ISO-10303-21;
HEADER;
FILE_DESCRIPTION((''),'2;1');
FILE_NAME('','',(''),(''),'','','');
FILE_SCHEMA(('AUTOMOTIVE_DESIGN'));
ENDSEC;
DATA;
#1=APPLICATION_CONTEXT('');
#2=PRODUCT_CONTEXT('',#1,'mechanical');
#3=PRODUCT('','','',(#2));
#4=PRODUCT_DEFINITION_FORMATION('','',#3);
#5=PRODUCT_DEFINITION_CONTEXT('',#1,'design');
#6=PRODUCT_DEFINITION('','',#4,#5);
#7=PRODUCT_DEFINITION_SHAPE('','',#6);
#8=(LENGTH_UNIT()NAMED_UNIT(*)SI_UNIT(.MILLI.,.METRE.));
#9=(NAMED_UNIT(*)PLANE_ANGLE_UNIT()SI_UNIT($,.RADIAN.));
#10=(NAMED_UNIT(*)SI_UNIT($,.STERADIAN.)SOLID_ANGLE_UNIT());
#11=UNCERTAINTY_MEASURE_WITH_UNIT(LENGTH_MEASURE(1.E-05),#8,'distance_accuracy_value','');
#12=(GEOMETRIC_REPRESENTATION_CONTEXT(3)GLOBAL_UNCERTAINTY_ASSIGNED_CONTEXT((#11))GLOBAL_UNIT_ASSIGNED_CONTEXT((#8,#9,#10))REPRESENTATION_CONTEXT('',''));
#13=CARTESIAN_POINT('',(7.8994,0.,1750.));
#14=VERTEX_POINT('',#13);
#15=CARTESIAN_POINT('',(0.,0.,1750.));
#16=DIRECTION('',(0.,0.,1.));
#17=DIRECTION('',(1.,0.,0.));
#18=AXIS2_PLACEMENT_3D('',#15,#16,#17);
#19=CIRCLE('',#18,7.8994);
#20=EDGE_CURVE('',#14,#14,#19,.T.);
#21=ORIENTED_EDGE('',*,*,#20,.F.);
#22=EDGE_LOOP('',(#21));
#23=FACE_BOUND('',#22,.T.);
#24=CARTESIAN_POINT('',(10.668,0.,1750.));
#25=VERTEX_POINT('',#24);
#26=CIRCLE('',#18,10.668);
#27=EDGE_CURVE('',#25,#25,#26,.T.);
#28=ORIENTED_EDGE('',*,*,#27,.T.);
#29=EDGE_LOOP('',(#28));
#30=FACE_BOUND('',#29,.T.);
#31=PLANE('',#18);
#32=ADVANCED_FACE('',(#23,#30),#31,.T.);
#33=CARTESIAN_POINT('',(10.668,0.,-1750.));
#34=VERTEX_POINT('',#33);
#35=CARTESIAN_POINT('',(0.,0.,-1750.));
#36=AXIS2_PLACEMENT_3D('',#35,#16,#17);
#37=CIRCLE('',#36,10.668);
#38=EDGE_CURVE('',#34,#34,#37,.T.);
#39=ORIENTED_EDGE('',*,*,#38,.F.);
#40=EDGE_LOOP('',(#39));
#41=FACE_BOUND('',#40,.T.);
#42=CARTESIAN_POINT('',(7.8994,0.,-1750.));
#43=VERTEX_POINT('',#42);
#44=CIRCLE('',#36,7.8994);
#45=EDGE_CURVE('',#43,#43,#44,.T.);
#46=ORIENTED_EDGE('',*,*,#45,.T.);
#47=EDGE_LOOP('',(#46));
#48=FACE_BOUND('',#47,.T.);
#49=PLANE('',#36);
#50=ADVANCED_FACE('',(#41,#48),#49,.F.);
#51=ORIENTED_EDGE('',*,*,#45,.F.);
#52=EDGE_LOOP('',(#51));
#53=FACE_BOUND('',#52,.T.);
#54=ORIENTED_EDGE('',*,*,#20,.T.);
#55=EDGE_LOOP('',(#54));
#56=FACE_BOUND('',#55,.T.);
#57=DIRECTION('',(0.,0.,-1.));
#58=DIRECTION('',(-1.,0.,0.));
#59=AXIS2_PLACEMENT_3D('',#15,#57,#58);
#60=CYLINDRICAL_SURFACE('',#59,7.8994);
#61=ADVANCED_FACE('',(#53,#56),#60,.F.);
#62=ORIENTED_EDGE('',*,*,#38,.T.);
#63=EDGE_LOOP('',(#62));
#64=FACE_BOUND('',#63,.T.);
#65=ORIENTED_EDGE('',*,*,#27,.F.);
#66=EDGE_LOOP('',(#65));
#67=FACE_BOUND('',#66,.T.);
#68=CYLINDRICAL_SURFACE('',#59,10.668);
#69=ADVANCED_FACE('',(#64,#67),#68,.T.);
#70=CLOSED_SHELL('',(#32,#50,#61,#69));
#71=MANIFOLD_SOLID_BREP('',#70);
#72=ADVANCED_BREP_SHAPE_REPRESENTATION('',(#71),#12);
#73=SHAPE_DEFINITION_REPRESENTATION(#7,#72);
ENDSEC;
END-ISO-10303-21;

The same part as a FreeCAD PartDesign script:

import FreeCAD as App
import Part
import Sketcher
Q = App.Units.Quantity

doc = App.newDocument("Part")
body = doc.addObject("PartDesign::Body", "Body")

# Sketch on XY plane
sketch1 = doc.addObject("Sketcher::SketchObject", "Sketch")
body.addObject(sketch1)
sketch1.AttachmentSupport = (doc.XY_Plane, [""])
sketch1.MapMode = "FlatFace"
sketch1.addGeometry([
    Part.Circle(App.Vector(0, 0, 0), App.Vector(0, 0, 1), 11),
    Part.Circle(App.Vector(0, 0, 0), App.Vector(0, 0, 1), 8),
], False)
sketch1.addConstraint([
    Sketcher.Constraint("Coincident", 0, 3, -1, 1),
    Sketcher.Constraint("Coincident", 1, 3, -1, 1),
    Sketcher.Constraint("Diameter", 0, Q("0.84 in")),
    Sketcher.Constraint("Diameter", 1, Q("0.622 in")),
])
pad1 = doc.addObject("PartDesign::Pad", "Pad")
body.addObject(pad1)
pad1.Profile = sketch1
pad1.Length = 3500
pad1.Midplane = True

doc.recompute()
